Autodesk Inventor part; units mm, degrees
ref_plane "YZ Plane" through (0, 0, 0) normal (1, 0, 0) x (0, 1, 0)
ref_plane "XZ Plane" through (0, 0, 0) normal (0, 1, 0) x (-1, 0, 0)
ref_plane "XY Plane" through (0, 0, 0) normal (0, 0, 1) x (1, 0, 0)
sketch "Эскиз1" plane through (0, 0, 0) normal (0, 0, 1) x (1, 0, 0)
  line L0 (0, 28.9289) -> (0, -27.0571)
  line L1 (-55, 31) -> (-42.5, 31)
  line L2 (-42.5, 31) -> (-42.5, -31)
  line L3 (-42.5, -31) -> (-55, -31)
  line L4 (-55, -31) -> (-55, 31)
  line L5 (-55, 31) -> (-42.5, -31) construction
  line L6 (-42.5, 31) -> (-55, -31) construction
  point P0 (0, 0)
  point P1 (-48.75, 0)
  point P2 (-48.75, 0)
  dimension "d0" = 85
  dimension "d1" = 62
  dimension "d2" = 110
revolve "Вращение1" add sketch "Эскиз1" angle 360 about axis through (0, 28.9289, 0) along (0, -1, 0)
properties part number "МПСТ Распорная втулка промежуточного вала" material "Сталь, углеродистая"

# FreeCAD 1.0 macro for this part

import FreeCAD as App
import Part
import Sketcher
Q = App.Units.Quantity

doc = App.newDocument("Part")
body = doc.addObject("PartDesign::Body", "Body")

# Sketch on XY plane
sketch1 = body.newObject("Sketcher::SketchObject", "Sketch")
sketch1.AttachmentSupport = (doc.getObject("XY_Plane"), [""])
sketch1.MapMode = "FlatFace"
sketch1.addGeometry([
    Part.LineSegment(App.Vector(-42.5, 31, 0), App.Vector(-55, 31, 0)),
    Part.LineSegment(App.Vector(-55, 31, 0), App.Vector(-55, -31, 0)),
    Part.LineSegment(App.Vector(-55, -31, 0), App.Vector(-42.5, -31, 0)),
    Part.LineSegment(App.Vector(-42.5, -31, 0), App.Vector(-42.5, 31, 0)),
], False)
sketch1.addConstraint([
    Sketcher.Constraint("Coincident", 0, 2, 1, 1),
    Sketcher.Constraint("Coincident", 1, 2, 2, 1),
    Sketcher.Constraint("Coincident", 2, 2, 3, 1),
    Sketcher.Constraint("Coincident", 3, 2, 0, 1),
    Sketcher.Constraint("Horizontal", 0),
    Sketcher.Constraint("Vertical", 1),
    Sketcher.Constraint("Horizontal", 2),
    Sketcher.Constraint("Vertical", 3),
    Sketcher.Constraint("DistanceY", 1, 2, 1, 1, Q("62 mm")),
    Sketcher.Constraint("DistanceX", 0, 2, 0, 1, Q("12.5 mm")),
    Sketcher.Constraint("DistanceX", 0, 2, -1, 1, Q("55 mm")),
    Sketcher.Constraint("DistanceY", -1, 1, 0, 2, Q("31 mm")),
])
revolution = body.newObject("PartDesign::Revolution", "Revolution")
revolution.Profile = sketch1
revolution.ReferenceAxis = (sketch1, ["V_Axis"])
revolution.Angle = 360

doc.recompute()
